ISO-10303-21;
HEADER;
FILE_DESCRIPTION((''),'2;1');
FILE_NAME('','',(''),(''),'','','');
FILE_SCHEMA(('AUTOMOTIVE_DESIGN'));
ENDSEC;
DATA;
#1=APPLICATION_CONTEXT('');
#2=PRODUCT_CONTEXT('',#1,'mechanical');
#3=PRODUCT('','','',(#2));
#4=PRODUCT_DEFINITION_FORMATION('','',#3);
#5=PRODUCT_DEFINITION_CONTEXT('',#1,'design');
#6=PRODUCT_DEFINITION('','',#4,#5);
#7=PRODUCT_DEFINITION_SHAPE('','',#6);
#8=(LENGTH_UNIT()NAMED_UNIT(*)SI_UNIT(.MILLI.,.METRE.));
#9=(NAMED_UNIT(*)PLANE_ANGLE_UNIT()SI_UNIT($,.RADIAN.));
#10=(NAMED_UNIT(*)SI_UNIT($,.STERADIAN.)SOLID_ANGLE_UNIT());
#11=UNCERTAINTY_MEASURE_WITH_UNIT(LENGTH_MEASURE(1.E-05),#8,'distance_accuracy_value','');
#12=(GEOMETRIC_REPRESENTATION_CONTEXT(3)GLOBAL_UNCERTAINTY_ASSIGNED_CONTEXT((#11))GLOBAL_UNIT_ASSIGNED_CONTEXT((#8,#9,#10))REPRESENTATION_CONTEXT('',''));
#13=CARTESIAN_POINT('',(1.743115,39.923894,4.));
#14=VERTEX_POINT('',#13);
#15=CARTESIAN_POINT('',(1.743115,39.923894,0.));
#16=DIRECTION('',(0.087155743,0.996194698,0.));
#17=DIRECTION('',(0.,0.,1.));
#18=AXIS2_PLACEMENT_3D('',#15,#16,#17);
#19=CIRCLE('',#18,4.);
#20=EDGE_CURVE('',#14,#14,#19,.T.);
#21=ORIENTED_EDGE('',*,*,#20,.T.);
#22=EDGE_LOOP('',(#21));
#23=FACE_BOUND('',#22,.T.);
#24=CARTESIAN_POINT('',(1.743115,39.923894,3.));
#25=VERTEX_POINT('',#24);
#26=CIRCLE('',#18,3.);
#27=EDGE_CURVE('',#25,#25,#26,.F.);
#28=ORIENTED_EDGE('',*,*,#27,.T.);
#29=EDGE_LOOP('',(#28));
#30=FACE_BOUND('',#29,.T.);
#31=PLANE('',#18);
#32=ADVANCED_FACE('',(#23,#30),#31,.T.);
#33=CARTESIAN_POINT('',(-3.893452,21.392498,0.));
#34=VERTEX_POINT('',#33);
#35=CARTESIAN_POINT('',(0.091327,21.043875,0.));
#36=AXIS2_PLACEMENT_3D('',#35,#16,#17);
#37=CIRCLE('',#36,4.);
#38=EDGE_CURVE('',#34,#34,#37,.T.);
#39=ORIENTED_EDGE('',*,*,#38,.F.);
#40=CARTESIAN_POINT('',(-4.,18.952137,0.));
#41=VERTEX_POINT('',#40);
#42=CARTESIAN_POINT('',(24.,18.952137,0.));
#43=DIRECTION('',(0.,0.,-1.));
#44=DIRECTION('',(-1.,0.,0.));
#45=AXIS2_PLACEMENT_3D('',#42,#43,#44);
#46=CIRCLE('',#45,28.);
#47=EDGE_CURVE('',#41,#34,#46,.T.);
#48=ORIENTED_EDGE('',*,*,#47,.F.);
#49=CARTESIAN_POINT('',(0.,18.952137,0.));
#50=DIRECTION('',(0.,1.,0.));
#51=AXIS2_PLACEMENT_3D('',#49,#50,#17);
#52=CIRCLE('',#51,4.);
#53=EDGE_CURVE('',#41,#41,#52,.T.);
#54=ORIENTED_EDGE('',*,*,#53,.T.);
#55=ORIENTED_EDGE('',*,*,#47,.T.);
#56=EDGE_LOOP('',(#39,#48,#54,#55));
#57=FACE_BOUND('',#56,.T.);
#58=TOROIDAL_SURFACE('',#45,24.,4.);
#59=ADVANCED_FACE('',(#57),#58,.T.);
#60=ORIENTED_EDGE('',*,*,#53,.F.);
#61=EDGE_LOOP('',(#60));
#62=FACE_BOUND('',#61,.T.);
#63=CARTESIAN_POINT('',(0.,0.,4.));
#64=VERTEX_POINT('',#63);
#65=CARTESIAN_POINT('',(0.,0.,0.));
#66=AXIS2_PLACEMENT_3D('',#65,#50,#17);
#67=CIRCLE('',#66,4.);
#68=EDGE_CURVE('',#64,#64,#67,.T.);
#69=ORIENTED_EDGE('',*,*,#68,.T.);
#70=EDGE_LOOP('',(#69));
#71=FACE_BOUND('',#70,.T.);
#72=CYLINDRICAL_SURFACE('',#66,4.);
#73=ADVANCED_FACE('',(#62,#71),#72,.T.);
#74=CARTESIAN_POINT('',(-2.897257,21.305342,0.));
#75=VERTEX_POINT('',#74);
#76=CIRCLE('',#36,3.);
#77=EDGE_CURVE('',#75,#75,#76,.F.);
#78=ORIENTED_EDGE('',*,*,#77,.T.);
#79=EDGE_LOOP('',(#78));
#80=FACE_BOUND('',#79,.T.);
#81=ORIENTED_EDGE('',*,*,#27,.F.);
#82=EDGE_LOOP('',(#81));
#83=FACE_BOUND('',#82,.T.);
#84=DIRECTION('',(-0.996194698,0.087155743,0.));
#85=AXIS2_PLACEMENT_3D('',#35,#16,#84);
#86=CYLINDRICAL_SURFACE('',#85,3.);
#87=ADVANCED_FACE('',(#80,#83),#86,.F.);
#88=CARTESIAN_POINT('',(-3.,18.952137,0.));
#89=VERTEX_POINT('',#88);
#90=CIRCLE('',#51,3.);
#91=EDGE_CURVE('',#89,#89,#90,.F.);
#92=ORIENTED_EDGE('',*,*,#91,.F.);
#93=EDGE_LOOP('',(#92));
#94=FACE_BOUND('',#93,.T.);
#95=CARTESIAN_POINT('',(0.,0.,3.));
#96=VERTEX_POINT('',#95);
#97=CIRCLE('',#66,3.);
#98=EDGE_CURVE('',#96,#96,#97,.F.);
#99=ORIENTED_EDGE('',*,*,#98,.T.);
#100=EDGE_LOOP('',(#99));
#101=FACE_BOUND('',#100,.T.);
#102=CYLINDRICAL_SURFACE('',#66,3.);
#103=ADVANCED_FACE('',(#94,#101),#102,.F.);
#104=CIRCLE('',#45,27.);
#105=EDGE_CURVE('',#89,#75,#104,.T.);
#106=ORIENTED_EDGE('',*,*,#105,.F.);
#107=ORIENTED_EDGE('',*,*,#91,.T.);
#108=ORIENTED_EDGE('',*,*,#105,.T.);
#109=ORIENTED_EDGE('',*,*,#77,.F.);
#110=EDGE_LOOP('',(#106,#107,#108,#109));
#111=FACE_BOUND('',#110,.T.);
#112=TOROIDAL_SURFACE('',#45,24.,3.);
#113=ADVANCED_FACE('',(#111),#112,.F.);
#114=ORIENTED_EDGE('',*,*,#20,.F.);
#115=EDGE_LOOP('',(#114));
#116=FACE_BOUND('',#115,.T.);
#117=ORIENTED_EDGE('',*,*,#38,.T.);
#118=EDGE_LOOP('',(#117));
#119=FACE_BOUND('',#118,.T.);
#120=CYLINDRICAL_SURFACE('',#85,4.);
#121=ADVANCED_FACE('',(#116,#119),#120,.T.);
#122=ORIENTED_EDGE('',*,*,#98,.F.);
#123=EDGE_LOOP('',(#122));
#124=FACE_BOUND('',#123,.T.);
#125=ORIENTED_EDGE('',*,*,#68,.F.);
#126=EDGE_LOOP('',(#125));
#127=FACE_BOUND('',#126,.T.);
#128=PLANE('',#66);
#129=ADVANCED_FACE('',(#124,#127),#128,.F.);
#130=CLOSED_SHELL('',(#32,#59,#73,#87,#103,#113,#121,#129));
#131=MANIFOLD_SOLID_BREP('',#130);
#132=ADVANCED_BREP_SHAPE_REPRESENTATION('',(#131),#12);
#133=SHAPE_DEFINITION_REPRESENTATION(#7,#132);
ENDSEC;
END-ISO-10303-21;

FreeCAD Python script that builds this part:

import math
import FreeCAD as App
import Part
import Sketcher
Q = App.Units.Quantity

doc = App.newDocument("Part")
body = doc.addObject("PartDesign::Body", "Body")

# Sketch on XZ plane
sketch1 = doc.addObject("Sketcher::SketchObject", "Sketch")
body.addObject(sketch1)
sketch1.AttachmentSupport = (doc.XZ_Plane, [""])
sketch1.MapMode = "FlatFace"
sketch1.addGeometry([
    Part.Circle(App.Vector(0, 0, 0), App.Vector(0, 0, 1), 4),
    Part.Circle(App.Vector(0, 0, 0), App.Vector(0, 0, 1), 3),
], False)
sketch1.addConstraint([
    Sketcher.Constraint("Coincident", 0, 3, -1, 1),
    Sketcher.Constraint("Coincident", 1, 3, -1, 1),
    Sketcher.Constraint("Diameter", 0, 8.0),
    Sketcher.Constraint("Diameter", 1, 6.0),
])

# Sketch on XY plane
sketch2 = doc.addObject("Sketcher::SketchObject", "Sketch001")
body.addObject(sketch2)
sketch2.AttachmentSupport = (doc.XY_Plane, [""])
sketch2.MapMode = "FlatFace"
sketch2.addGeometry([
    Part.LineSegment(App.Vector(0, 0, 0), App.Vector(0, 18.952137, 0)),
    Part.ArcOfCircle(Part.Circle(App.Vector(24, 18.952137, 0), App.Vector(0, 0, 1), 24), math.radians(175), math.radians(180)),
    Part.LineSegment(App.Vector(0.091327, 21.043875, 0), App.Vector(1.743115, 39.923894, 0)),
], False)
sketch2.addConstraint([
    Sketcher.Constraint("Tangent", 0, 2, 1, 2),
    Sketcher.Constraint("Tangent", 1, 1, 2, 1),
    Sketcher.Constraint("Vertical", 0),
    Sketcher.Constraint("Coincident", 0, 1, -1, 1),
    Sketcher.Constraint("Radius", 1, 24.0),
    Sketcher.Constraint("Angle", 2, Q("85 deg")),
    Sketcher.Constraint("DistanceY", 0, 1, 0, 2, 18.952137),
    Sketcher.Constraint("DistanceY", 1, 1, 2, 2, 18.880019),
])
doc.recompute()

additivepipe = doc.addObject("PartDesign::AdditivePipe", "AdditivePipe")
body.addObject(additivepipe)
additivepipe.Profile = sketch1
additivepipe.Spine = (sketch2, ["Edge1", "Edge2", "Edge3"])

doc.recompute()
